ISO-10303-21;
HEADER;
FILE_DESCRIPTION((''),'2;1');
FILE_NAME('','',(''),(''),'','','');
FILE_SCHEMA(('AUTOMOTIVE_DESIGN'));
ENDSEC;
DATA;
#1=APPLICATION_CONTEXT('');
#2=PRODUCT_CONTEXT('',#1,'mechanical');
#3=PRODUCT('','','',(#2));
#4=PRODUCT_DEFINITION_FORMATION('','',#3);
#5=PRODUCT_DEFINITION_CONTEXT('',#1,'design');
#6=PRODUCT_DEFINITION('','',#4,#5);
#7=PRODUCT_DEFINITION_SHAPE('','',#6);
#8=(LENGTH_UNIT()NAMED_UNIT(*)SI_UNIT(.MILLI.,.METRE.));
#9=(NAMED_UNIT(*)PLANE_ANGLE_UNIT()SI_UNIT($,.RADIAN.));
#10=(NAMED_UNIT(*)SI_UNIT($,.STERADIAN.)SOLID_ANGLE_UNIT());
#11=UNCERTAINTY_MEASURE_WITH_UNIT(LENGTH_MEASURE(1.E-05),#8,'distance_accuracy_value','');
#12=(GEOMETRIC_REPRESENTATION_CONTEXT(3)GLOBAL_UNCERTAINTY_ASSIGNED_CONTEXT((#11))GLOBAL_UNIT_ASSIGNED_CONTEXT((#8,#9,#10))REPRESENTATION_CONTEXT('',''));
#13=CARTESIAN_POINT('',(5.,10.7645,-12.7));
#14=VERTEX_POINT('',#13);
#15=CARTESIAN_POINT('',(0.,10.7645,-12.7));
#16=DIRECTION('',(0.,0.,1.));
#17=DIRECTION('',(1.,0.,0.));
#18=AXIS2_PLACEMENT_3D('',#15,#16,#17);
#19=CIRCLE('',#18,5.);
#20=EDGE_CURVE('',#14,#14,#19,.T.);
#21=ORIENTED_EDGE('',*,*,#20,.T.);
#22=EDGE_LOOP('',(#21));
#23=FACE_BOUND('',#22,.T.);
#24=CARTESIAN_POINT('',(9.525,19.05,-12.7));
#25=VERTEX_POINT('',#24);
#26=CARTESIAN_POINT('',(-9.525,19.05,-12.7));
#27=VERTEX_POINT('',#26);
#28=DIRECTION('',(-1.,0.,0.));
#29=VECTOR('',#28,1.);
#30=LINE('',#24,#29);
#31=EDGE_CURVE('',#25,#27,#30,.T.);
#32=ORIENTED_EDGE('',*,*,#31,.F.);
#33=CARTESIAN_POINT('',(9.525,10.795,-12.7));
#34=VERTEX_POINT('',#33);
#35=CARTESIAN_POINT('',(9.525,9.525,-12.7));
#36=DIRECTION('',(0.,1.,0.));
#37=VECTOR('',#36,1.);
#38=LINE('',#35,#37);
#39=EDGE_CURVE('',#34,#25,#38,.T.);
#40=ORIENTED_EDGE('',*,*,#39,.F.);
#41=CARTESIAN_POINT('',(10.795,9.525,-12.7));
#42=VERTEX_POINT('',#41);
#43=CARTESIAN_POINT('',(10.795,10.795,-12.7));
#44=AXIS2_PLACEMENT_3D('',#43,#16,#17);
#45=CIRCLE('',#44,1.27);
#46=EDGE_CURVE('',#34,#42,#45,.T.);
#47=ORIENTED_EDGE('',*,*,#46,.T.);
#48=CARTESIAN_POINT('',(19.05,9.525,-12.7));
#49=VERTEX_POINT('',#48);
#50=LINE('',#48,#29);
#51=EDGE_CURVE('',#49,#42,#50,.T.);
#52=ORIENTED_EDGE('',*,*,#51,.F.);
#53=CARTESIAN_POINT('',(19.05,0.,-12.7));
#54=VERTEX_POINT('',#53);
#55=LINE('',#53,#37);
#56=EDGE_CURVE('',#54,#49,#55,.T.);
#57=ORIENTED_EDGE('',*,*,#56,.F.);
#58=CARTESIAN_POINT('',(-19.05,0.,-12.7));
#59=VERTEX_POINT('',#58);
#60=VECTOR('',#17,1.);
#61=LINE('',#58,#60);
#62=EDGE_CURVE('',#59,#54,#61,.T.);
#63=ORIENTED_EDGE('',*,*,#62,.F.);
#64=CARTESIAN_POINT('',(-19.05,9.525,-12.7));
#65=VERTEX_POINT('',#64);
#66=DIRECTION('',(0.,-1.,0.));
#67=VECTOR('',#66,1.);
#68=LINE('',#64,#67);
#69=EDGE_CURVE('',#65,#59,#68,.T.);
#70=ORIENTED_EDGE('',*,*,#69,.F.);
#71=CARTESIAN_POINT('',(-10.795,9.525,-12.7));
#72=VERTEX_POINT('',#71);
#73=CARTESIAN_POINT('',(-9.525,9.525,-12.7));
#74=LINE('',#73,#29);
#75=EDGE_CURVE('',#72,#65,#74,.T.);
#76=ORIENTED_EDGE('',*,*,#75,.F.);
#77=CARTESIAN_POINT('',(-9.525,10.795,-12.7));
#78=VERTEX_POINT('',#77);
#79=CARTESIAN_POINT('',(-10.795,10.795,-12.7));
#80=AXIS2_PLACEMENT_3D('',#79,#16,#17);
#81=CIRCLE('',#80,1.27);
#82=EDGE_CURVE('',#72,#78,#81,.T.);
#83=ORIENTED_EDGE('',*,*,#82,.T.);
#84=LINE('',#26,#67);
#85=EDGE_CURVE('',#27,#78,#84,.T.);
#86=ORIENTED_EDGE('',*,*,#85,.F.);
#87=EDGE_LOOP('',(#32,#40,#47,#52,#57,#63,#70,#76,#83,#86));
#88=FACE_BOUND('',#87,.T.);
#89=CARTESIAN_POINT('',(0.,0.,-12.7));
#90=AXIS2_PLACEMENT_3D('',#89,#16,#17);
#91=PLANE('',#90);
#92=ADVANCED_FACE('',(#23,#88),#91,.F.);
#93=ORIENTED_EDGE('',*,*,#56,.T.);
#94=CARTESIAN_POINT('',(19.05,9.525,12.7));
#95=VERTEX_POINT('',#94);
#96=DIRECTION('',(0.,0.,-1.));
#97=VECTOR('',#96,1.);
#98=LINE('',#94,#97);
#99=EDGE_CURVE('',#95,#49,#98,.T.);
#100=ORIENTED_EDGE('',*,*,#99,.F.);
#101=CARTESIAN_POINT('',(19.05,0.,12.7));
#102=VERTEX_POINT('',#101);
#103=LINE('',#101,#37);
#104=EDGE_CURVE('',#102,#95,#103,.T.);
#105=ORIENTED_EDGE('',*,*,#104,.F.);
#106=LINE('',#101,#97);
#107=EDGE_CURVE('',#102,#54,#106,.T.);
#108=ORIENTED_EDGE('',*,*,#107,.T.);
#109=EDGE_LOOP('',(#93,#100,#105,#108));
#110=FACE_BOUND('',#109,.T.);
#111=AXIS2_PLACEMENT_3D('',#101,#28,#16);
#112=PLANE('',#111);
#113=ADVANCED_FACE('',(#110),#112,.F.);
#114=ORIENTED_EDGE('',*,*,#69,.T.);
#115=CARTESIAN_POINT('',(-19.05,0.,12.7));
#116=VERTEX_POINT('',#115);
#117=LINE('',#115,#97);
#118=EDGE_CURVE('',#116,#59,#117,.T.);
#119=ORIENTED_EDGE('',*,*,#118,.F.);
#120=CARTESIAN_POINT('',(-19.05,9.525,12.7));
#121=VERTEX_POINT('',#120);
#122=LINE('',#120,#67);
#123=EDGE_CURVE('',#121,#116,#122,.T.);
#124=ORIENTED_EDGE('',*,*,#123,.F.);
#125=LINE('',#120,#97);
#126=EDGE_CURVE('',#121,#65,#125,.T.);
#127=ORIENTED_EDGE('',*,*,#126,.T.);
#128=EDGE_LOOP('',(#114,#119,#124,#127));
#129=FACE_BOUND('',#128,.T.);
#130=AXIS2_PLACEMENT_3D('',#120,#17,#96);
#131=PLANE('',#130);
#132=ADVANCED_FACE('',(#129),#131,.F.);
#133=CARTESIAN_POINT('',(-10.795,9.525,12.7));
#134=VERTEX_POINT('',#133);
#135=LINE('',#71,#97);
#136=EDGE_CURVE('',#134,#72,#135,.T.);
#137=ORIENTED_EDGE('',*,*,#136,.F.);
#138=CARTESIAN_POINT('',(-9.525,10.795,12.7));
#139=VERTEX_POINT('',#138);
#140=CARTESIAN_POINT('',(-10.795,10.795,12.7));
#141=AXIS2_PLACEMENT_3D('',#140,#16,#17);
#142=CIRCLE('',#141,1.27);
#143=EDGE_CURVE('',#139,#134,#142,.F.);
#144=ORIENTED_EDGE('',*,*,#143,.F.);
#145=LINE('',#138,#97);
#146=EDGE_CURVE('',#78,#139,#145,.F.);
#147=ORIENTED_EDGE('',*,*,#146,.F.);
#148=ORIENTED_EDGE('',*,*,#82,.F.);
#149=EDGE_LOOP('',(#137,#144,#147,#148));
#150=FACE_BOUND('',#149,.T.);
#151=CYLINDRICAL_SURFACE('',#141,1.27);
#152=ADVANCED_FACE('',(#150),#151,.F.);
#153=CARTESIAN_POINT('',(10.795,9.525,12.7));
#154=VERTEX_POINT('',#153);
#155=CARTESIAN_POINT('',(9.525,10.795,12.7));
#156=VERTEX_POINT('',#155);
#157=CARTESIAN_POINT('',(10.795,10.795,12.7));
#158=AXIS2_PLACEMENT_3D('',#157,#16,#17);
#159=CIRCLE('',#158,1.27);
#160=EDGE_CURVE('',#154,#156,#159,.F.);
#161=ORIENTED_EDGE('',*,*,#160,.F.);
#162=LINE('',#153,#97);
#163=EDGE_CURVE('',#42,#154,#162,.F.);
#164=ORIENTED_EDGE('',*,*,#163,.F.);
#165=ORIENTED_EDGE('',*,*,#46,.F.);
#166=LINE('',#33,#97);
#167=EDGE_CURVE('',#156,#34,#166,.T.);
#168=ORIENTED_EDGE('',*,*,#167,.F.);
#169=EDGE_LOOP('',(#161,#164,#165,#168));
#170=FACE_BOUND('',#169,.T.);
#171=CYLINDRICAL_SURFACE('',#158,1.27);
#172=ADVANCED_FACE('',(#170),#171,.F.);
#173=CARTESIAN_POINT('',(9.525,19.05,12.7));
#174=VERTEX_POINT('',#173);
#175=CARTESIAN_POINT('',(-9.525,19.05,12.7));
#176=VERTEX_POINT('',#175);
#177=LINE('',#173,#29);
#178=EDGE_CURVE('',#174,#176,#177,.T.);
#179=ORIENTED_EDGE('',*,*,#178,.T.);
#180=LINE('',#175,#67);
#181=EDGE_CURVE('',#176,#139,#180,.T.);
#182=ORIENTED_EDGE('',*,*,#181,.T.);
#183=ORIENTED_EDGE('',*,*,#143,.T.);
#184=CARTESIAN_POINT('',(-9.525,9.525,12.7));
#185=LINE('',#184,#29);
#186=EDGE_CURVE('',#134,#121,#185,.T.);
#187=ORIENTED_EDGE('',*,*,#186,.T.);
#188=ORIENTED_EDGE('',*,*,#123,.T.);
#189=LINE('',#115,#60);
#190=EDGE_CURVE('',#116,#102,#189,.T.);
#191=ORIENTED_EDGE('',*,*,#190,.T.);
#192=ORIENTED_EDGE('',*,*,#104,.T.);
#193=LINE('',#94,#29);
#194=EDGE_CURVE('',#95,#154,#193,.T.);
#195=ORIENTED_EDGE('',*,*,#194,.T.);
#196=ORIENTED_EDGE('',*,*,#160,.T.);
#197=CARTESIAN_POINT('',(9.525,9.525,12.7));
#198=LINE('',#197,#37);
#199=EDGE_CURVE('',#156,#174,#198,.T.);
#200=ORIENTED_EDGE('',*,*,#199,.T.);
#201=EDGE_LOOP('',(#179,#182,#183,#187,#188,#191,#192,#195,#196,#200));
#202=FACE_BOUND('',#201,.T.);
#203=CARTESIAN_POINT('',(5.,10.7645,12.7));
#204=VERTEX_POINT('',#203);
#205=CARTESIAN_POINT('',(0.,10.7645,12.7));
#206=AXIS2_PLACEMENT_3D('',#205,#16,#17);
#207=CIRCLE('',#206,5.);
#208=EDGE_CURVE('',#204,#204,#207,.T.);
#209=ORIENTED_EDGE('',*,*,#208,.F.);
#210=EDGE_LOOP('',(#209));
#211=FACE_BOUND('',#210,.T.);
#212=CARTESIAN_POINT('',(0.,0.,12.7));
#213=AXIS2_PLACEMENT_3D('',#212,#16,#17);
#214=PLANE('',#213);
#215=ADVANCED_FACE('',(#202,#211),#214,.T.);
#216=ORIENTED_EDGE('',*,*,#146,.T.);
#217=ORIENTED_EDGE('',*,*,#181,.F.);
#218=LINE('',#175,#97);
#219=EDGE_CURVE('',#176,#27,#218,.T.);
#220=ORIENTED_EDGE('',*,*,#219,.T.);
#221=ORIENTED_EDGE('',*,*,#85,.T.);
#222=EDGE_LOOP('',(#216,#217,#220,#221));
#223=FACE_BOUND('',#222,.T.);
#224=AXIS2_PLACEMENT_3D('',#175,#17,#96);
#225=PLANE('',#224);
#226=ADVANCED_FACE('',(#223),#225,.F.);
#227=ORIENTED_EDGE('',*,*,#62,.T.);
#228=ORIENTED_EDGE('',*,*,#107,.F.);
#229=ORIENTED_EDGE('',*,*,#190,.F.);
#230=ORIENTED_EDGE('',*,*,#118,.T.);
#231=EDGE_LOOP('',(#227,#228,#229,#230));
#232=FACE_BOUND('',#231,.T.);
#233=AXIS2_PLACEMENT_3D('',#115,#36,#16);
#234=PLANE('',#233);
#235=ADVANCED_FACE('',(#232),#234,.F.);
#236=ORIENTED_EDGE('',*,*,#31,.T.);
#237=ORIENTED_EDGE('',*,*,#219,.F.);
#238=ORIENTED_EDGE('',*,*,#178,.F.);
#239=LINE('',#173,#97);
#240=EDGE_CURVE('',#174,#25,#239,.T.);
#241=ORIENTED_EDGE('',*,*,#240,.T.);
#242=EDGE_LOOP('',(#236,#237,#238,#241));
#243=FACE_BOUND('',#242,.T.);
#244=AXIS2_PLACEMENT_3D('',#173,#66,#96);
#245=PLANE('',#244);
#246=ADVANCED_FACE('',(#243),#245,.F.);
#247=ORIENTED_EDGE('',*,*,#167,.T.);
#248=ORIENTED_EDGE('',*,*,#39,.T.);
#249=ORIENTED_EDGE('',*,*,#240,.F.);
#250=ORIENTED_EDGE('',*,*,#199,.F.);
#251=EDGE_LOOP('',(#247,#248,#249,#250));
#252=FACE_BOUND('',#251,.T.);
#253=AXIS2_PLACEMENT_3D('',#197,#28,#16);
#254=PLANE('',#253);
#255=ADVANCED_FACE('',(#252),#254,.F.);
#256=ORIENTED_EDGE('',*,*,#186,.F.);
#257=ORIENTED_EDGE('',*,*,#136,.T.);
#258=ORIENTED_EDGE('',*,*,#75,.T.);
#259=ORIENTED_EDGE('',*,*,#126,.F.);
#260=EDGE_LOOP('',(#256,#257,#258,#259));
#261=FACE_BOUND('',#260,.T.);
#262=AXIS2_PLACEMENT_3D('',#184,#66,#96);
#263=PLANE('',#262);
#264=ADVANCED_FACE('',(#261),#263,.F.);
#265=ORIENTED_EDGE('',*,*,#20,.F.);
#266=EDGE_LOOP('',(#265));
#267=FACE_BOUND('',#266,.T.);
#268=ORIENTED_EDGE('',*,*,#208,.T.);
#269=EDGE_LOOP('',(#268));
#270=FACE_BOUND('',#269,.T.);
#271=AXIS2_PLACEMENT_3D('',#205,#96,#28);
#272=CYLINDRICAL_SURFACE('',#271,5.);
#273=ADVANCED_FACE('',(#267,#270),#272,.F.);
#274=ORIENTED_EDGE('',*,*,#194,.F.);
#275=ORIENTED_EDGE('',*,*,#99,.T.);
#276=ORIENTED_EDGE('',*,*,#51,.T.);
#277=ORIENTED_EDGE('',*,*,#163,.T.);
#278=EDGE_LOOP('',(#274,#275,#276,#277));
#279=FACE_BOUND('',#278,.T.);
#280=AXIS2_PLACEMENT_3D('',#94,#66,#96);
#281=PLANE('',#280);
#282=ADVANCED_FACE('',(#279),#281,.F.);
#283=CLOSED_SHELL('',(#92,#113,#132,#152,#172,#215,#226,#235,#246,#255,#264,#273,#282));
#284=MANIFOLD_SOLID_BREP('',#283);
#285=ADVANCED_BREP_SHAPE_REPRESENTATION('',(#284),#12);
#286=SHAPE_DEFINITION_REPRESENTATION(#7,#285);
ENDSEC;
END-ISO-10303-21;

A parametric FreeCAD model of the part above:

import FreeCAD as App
import Part
import Sketcher
from FreeCAD import Vector
Q = App.Units.Quantity


def edges_at(feature, points):
    """Names of the edges that pass closest to the given points."""
    edges = feature.Shape.Edges
    near = lambda p: min(range(len(edges)), key=lambda i: edges[i].distToShape(Part.Vertex(*p))[0])
    return sorted({f"Edge{near(p) + 1}" for p in points})


def add_polygon(sketch, points):
    """Adds a closed chain of lines whose ends are joined by coincident constraints."""
    first, n = sketch.GeometryCount, len(points)
    for a, b in zip(points, points[1:] + points[:1]):
        sketch.addGeometry(Part.LineSegment(App.Vector(*a, 0), App.Vector(*b, 0)), False)
    for i in range(n):
        sketch.addConstraint(Sketcher.Constraint("Coincident", first + i, 2, first + (i + 1) % n, 1))

doc = App.newDocument("Part")
body = doc.addObject("PartDesign::Body", "Body")

sketch1 = body.newObject("Sketcher::SketchObject", "Sketch")
sketch1.AttachmentSupport = (doc.getObject("XY_Plane"), [""])
sketch1.MapMode = "FlatFace"
add_polygon(sketch1, [(-19, 0), (19, 0), (19, 10), (10, 10), (10, 19), (-10, 19), (-10, 10), (-19, 10)])
sketch1.addGeometry(Part.Circle(Vector(0, 11, 0), Vector(0, 0, 1), 5), False)
sketch1.addConstraint(Sketcher.Constraint("Horizontal", 0))
sketch1.addConstraint(Sketcher.Constraint("Vertical", 1))
sketch1.addConstraint(Sketcher.Constraint("Horizontal", 2))
sketch1.addConstraint(Sketcher.Constraint("Vertical", 3))
sketch1.addConstraint(Sketcher.Constraint("Horizontal", 4))
sketch1.addConstraint(Sketcher.Constraint("Vertical", 5))
sketch1.addConstraint(Sketcher.Constraint("Horizontal", 6))
sketch1.addConstraint(Sketcher.Constraint("Vertical", 7))
sketch1.addConstraint(Sketcher.Constraint("Symmetric", 0, 2, 7, 2, -1, 1))
sketch1.addConstraint(Sketcher.Constraint("Symmetric", 2, 2, 5, 2, -2))
sketch1.addConstraint(Sketcher.Constraint("PointOnObject", 8, 3, -2))
sketch1.addConstraint(Sketcher.Constraint("Equal", 6, 1))
sketch1.addConstraint(Sketcher.Constraint("Equal", 1, 3))
sketch1.addConstraint(Sketcher.Constraint("DistanceX", 0, 1, 0, 2, Q("1.5 in")))
sketch1.addConstraint(Sketcher.Constraint("DistanceX", 4, 2, 4, 1, Q("0.75 in")))
sketch1.addConstraint(Sketcher.Constraint("Diameter", 8, Q("10 mm")))
sketch1.addConstraint(Sketcher.Constraint("DistanceY", -1, 1, 8, 3, Q("10.7645 mm")))
pad1 = body.newObject("PartDesign::Pad", "Pad")
pad1.Profile = sketch1
pad1.Length = Q("1 in")
pad1.Midplane = True
doc.recompute()

fillet = body.newObject("PartDesign::Fillet", "Fillet")
fillet.Base = (pad1, edges_at(pad1, [(-9.525, 9.525, 0), (9.525, 9.525, 0)]))
fillet.Radius = Q("0.05 in")

doc.recompute()
